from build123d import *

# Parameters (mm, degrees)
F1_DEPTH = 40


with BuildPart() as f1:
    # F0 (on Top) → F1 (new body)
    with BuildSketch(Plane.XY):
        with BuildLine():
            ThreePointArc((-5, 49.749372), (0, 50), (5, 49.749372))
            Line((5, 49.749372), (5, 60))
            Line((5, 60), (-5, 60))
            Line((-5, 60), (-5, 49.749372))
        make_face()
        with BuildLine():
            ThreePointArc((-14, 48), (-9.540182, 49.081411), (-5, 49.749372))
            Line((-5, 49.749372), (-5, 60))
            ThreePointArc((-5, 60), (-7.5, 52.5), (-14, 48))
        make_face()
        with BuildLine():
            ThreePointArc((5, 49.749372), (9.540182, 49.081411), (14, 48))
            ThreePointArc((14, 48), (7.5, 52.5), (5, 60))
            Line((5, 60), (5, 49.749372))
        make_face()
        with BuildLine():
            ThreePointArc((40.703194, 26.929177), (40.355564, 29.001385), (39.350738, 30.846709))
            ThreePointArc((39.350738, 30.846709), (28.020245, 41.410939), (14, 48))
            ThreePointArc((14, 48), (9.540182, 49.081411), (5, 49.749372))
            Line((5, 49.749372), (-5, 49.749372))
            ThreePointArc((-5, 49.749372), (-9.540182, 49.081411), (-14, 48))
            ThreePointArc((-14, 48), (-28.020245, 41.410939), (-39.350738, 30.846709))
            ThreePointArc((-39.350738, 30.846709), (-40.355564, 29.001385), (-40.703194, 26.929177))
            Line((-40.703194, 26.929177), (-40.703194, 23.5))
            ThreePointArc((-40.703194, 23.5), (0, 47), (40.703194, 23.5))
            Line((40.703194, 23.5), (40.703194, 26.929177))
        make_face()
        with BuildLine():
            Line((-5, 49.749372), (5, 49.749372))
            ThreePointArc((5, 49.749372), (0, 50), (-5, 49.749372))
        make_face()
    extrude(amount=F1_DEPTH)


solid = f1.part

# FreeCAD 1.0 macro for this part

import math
import FreeCAD as App
import Part
import Sketcher

V = App.Vector

doc = App.newDocument("Part")
body = doc.addObject("PartDesign::Body", "Body")

sketch1 = body.newObject("Sketcher::SketchObject", "Sketch")
sketch1.AttachmentSupport = (doc.getObject("XY_Plane"), [""])
sketch1.MapMode = "FlatFace"
sketch1.addGeometry([
    Part.ArcOfCircle(Part.Circle(V(17.5, 60, 0), V(0, 0, 1), 12.5), math.radians(180), math.radians(253.739795)),
    Part.LineSegment(V(5, 60, 0), V(-5, 60, 0)),
    Part.ArcOfCircle(Part.Circle(V(-17.5, 60, 0), V(0, 0, 1), 12.5), math.radians(-73.739795), math.radians(0)),
    Part.ArcOfCircle(Part.Circle(V(0.000002, -0.000004, 0), V(0, 0, 1), 50.000004), math.radians(106.260205), math.radians(141.907402)),
    Part.ArcOfCircle(Part.Circle(V(-34.35318, 26.929173, 0), V(0, 0, 1), 6.350014), math.radians(141.907451), math.radians(179.999961)),
    Part.LineSegment(V(-40.703194, 26.929177, 0), V(-40.703194, 23.5, 0)),
    Part.ArcOfCircle(Part.Circle(V(0, 0, 0), V(0, 0, 1), 47), math.radians(30), math.radians(150)),
    Part.LineSegment(V(40.703194, 23.5, 0), V(40.703194, 26.929177, 0)),
    Part.ArcOfCircle(Part.Circle(V(34.35318, 26.929173, 0), V(0, 0, 1), 6.350014), math.radians(0.000039), math.radians(38.092549)),
    Part.ArcOfCircle(Part.Circle(V(-0.000002, -0.000004, 0), V(0, 0, 1), 50.000004), math.radians(38.092598), math.radians(73.739795)),
], False)
sketch1.addConstraint([
    Sketcher.Constraint("Coincident", 0, 1, 1, 1),
    Sketcher.Constraint("Coincident", 1, 2, 2, 2),
    Sketcher.Constraint("Tangent", 2, 1, 3, 1),
    Sketcher.Constraint("Tangent", 3, 2, 4, 1),
    Sketcher.Constraint("Tangent", 4, 2, 5, 1),
    Sketcher.Constraint("Coincident", 5, 2, 6, 2),
    Sketcher.Constraint("Coincident", 6, 1, 7, 1),
    Sketcher.Constraint("Tangent", 7, 2, 8, 1),
    Sketcher.Constraint("Tangent", 8, 2, 9, 1),
    Sketcher.Constraint("Tangent", 9, 2, 0, 2),
    Sketcher.Constraint("Horizontal", 1),
    Sketcher.Constraint("Vertical", 5),
    Sketcher.Constraint("Vertical", 7),
    Sketcher.Constraint("Coincident", 3, 3, -1, 1),
    Sketcher.Constraint("Coincident", 6, 3, -1, 1),
    Sketcher.Constraint("Coincident", 9, 3, -1, 1),
    Sketcher.Constraint("Equal", 0, 2),
    Sketcher.Constraint("Equal", 4, 8),
    Sketcher.Constraint("Equal", 3, 9),
    Sketcher.Constraint("Horizontal", 0, 3, 2, 3),
    Sketcher.Constraint("Horizontal", 4, 3, 8, 3),
    Sketcher.Constraint("Horizontal", 2, 3, 0, 1),
    Sketcher.Constraint("Radius", 6, 47.0),
    Sketcher.Constraint("Radius", 0, 12.5),
    Sketcher.Constraint("DistanceX", 1, 2, 1, 1, 10.0),
    Sketcher.Constraint("DistanceY", -1, 1, 0, 3, 60.0),
    Sketcher.Constraint("DistanceY", -1, 1, 5, 2, 23.5),
    Sketcher.Constraint("Radius", 4, 6.350014),
])
pad1 = body.newObject("PartDesign::Pad", "Pad")
pad1.Profile = sketch1
pad1.Length = 40

doc.recompute()
